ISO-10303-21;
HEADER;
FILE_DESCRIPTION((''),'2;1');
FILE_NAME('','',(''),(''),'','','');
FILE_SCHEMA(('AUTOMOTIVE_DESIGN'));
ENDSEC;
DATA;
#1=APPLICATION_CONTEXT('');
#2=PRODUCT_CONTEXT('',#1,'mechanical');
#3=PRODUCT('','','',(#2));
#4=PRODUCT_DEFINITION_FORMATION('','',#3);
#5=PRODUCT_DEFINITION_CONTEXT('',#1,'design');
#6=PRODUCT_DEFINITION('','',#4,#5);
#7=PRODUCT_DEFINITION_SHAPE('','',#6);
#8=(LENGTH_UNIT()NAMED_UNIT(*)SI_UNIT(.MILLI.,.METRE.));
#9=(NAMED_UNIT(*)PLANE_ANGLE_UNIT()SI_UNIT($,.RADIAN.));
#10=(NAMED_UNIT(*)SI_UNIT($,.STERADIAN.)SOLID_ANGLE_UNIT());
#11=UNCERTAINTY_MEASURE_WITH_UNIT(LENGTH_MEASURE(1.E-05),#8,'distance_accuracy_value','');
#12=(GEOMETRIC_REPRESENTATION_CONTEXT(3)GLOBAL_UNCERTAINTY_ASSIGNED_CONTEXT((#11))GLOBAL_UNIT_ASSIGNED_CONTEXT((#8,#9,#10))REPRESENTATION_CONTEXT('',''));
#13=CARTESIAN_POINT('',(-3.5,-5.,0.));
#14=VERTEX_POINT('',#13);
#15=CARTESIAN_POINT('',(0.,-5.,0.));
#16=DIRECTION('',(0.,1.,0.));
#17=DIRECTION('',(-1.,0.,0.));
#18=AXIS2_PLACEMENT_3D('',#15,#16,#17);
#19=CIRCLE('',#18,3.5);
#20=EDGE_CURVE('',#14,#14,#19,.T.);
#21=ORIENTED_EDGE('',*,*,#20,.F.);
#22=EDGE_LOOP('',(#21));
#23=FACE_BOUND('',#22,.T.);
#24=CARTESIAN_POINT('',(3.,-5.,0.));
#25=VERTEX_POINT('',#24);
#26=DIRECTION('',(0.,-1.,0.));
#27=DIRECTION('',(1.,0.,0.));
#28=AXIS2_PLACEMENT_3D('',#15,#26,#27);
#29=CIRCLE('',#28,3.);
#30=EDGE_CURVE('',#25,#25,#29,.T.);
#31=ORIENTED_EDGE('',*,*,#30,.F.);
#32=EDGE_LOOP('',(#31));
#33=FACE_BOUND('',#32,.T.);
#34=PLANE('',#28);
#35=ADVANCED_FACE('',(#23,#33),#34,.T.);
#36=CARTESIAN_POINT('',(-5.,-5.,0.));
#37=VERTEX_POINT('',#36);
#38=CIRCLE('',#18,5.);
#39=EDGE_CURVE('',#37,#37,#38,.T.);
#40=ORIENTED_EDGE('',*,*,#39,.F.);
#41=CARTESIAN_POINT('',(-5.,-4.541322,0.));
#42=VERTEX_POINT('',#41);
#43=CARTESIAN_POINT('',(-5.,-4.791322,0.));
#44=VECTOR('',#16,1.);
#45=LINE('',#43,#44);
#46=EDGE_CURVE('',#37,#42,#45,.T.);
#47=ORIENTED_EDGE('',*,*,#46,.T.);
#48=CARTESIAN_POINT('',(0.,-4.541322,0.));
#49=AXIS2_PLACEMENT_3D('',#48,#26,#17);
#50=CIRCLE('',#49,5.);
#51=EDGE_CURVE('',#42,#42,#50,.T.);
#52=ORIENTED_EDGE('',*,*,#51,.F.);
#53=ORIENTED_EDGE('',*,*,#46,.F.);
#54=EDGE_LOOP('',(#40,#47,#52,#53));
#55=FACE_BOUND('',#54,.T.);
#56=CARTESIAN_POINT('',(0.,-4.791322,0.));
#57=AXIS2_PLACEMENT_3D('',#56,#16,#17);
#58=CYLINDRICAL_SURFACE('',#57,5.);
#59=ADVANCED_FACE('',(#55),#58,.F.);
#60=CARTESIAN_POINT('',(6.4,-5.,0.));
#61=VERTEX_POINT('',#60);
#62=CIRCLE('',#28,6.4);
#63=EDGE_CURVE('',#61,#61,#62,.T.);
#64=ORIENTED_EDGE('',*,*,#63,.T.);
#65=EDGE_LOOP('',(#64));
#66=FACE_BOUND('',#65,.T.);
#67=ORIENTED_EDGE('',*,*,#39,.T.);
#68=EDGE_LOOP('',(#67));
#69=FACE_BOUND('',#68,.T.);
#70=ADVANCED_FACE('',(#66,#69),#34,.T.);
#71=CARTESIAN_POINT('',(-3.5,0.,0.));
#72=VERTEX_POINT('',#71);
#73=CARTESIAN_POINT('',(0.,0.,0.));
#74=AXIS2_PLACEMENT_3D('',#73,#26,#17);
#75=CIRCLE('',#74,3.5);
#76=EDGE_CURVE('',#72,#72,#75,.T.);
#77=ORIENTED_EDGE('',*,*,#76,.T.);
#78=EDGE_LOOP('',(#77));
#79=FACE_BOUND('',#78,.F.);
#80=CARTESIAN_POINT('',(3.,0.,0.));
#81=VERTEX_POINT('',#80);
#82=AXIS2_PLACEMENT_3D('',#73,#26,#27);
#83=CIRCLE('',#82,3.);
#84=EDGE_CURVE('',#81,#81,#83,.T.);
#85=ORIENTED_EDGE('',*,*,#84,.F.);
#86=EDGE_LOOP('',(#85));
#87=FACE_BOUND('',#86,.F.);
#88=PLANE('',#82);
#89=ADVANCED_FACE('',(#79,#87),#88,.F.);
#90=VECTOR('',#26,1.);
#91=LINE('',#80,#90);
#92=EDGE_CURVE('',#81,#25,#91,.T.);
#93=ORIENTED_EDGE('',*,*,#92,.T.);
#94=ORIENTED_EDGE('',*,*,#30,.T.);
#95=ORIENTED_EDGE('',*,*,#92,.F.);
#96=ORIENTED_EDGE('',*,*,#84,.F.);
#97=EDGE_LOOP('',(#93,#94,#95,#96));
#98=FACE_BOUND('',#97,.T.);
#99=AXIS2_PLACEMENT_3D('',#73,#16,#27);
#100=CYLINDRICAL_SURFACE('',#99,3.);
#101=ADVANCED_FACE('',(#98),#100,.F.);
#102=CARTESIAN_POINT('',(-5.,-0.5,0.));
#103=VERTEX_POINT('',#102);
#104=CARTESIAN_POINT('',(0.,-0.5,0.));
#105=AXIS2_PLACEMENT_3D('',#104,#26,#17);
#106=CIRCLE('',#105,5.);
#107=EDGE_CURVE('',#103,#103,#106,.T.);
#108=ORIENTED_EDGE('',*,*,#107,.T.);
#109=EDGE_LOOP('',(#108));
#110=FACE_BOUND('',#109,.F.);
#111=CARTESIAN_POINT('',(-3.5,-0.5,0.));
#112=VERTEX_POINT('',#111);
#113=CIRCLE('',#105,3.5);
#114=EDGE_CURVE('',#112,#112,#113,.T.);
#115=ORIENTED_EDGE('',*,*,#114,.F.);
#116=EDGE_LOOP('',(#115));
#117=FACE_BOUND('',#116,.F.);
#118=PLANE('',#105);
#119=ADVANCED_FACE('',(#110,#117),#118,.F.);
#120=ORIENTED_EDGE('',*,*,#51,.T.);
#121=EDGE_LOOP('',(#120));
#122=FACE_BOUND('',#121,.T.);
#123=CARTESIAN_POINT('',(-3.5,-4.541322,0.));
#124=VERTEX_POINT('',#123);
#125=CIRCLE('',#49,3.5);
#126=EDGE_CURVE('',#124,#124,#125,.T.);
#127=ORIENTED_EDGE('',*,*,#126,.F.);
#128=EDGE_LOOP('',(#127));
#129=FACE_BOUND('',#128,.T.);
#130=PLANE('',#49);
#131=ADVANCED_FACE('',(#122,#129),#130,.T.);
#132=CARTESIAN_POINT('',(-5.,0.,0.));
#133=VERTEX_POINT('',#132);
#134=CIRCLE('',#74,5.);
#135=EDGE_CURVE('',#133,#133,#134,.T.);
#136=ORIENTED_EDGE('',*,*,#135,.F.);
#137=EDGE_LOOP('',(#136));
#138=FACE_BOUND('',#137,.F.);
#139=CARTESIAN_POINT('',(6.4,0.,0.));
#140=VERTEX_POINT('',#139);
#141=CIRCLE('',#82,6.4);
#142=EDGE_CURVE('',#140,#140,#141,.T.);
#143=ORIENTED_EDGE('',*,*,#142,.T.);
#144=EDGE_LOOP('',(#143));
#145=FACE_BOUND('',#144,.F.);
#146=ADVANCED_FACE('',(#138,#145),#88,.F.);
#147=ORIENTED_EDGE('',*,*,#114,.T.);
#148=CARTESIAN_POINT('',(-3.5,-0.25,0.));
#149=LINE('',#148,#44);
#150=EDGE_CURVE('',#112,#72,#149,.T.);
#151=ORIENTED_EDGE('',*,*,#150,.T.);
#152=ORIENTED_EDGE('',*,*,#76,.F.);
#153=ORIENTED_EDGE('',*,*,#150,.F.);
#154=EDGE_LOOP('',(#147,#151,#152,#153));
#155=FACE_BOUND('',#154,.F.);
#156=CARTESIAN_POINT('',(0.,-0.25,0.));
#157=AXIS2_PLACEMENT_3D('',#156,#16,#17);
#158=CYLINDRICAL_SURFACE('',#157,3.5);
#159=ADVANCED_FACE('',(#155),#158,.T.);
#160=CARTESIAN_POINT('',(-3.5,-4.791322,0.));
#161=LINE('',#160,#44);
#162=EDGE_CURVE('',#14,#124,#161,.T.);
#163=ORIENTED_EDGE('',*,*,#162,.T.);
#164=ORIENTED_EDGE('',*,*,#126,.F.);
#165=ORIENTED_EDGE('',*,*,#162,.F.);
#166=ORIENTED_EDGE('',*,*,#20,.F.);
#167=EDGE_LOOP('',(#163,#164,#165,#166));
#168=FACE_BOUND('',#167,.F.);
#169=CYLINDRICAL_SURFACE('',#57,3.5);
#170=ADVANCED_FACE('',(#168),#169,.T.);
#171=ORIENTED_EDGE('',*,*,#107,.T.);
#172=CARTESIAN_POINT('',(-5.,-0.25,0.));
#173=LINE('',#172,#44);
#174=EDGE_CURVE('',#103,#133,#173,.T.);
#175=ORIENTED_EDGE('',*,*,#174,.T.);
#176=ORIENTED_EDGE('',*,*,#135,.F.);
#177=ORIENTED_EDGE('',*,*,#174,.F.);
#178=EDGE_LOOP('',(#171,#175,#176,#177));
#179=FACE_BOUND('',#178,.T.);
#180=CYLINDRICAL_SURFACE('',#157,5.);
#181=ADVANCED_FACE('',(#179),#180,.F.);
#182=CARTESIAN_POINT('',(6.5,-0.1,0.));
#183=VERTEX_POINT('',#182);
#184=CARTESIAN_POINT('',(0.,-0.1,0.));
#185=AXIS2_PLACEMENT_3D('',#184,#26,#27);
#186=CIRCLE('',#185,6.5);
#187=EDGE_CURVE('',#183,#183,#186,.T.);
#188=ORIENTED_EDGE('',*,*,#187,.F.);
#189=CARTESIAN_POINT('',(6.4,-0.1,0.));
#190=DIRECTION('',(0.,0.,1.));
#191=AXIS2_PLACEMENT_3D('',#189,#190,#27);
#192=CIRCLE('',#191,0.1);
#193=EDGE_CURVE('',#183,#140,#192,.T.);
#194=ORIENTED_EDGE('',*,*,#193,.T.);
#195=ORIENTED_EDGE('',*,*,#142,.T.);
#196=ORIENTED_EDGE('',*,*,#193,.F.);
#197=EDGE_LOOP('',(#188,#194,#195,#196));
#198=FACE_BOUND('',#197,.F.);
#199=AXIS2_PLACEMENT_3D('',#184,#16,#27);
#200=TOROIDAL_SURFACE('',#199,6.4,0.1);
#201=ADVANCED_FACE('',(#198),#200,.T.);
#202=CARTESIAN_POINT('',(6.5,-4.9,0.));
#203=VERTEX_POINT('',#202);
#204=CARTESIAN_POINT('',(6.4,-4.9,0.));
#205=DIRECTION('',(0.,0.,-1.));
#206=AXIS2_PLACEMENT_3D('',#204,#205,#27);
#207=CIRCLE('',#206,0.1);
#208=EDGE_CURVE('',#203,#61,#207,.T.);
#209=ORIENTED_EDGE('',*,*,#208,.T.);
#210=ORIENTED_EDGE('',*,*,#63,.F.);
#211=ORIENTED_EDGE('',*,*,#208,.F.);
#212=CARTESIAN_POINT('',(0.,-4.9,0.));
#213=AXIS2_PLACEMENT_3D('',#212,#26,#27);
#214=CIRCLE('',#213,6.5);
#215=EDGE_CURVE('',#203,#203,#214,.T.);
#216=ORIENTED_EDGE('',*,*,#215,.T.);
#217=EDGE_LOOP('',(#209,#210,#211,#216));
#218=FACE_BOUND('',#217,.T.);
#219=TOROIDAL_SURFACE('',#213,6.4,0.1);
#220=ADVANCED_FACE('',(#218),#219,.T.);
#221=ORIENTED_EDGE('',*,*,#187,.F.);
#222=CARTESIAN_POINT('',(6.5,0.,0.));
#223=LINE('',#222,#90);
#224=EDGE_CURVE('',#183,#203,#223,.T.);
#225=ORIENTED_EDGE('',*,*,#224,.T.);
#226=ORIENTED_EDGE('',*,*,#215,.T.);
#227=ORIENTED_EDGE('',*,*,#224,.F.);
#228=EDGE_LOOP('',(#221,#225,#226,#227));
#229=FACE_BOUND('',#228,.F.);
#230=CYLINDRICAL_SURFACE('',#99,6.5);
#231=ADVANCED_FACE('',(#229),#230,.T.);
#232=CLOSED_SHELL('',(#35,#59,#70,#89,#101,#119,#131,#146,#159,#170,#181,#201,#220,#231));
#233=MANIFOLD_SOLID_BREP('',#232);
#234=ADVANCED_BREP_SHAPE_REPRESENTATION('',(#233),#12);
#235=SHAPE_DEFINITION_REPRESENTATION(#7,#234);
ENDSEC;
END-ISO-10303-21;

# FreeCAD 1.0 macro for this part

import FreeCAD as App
import Part
import Sketcher

V = App.Vector


def edges_at(feature, points):
    """Names of the edges that pass closest to the given points."""
    edges = feature.Shape.Edges
    near = lambda p: min(range(len(edges)), key=lambda i: edges[i].distToShape(Part.Vertex(*p))[0])
    return sorted({f"Edge{near(p) + 1}" for p in points})

doc = App.newDocument("Part")
body = doc.addObject("PartDesign::Body", "Body")

# Sketch on XZ plane
sketch1 = doc.addObject("Sketcher::SketchObject", "Sketch")
body.addObject(sketch1)
sketch1.AttachmentSupport = (doc.XZ_Plane, [""])
sketch1.MapMode = "FlatFace"
sketch1.addGeometry(Part.Circle(V(0, 0, 0), V(0, 0, 1), 6.5), False)
sketch1.addGeometry(Part.Circle(V(0, 0, 0), V(0, 0, 1), 3), False)
sketch1.addConstraint(Sketcher.Constraint("Coincident", 0, 3, -1, 1))
sketch1.addConstraint(Sketcher.Constraint("Coincident", 1, 3, -1, 1))
sketch1.addConstraint(Sketcher.Constraint("Diameter", 0, 13.0))
sketch1.addConstraint(Sketcher.Constraint("Diameter", 1, 6.0))
pad1 = doc.addObject("PartDesign::Pad", "Pad")
body.addObject(pad1)
pad1.Profile = sketch1
pad1.Length = 5

# Sketch on XY plane
sketch2 = doc.addObject("Sketcher::SketchObject", "Sketch001")
body.addObject(sketch2)
sketch2.AttachmentSupport = (doc.XY_Plane, [""])
sketch2.MapMode = "FlatFace"
sketch2.addGeometry(Part.LineSegment(V(-5, -4.541322, 0), V(-5, -5.041322, 0)), False)
sketch2.addGeometry(Part.LineSegment(V(-5, -5.041322, 0), V(-3.5, -5.041322, 0)), False)
sketch2.addGeometry(Part.LineSegment(V(-3.5, -5.041322, 0), V(-3.5, -4.541322, 0)), False)
sketch2.addGeometry(Part.LineSegment(V(-3.5, -4.541322, 0), V(-5, -4.541322, 0)), False)
sketch2.addConstraint(Sketcher.Constraint("Coincident", 0, 2, 1, 1))
sketch2.addConstraint(Sketcher.Constraint("Coincident", 1, 2, 2, 1))
sketch2.addConstraint(Sketcher.Constraint("Coincident", 2, 2, 3, 1))
sketch2.addConstraint(Sketcher.Constraint("Coincident", 3, 2, 0, 1))
sketch2.addConstraint(Sketcher.Constraint("Vertical", 0))
sketch2.addConstraint(Sketcher.Constraint("Horizontal", 1))
sketch2.addConstraint(Sketcher.Constraint("Vertical", 2))
sketch2.addConstraint(Sketcher.Constraint("Horizontal", 3))
sketch2.addConstraint(Sketcher.Constraint("DistanceX", 1, 1, 1, 2, 1.5))
sketch2.addConstraint(Sketcher.Constraint("DistanceY", 0, 2, 0, 1, 0.5))
sketch2.addConstraint(Sketcher.Constraint("DistanceX", 0, 2, -1, 1, 5.0))
sketch2.addConstraint(Sketcher.Constraint("DistanceY", 0, 2, -1, 1, 5.041322))
groove = doc.addObject("PartDesign::Groove", "Groove")
body.addObject(groove)
groove.Profile = sketch2
groove.ReferenceAxis = (sketch2, ["V_Axis"])
groove.Angle = 360

# Sketch on XY plane
sketch3 = doc.addObject("Sketcher::SketchObject", "Sketch002")
body.addObject(sketch3)
sketch3.AttachmentSupport = (doc.XY_Plane, [""])
sketch3.MapMode = "FlatFace"
sketch3.addGeometry(Part.LineSegment(V(-5, 0, 0), V(-5, -0.5, 0)), False)
sketch3.addGeometry(Part.LineSegment(V(-5, -0.5, 0), V(-3.5, -0.5, 0)), False)
sketch3.addGeometry(Part.LineSegment(V(-3.5, -0.5, 0), V(-3.5, 0, 0)), False)
sketch3.addGeometry(Part.LineSegment(V(-3.5, 0, 0), V(-5, 0, 0)), False)
sketch3.addConstraint(Sketcher.Constraint("Coincident", 0, 2, 1, 1))
sketch3.addConstraint(Sketcher.Constraint("Coincident", 1, 2, 2, 1))
sketch3.addConstraint(Sketcher.Constraint("Coincident", 2, 2, 3, 1))
sketch3.addConstraint(Sketcher.Constraint("Coincident", 3, 2, 0, 1))
sketch3.addConstraint(Sketcher.Constraint("Vertical", 0))
sketch3.addConstraint(Sketcher.Constraint("Horizontal", 1))
sketch3.addConstraint(Sketcher.Constraint("Vertical", 2))
sketch3.addConstraint(Sketcher.Constraint("Horizontal", 3))
sketch3.addConstraint(Sketcher.Constraint("PointOnObject", 2, 2, -1))
sketch3.addConstraint(Sketcher.Constraint("DistanceX", 1, 1, 1, 2, 1.5))
sketch3.addConstraint(Sketcher.Constraint("DistanceY", 0, 2, 0, 1, 0.5))
sketch3.addConstraint(Sketcher.Constraint("DistanceX", 0, 2, -1, 1, 5.0))
groove2 = doc.addObject("PartDesign::Groove", "Groove001")
body.addObject(groove2)
groove2.Profile = sketch3
groove2.ReferenceAxis = (sketch3, ["V_Axis"])
groove2.Angle = 360
doc.recompute()

fillet = doc.addObject("PartDesign::Fillet", "Fillet")
body.addObject(fillet)
fillet.Base = (groove2, edges_at(groove2, [(-6.5, -5, 0)]))
fillet.Radius = 0.1
doc.recompute()

fillet2 = doc.addObject("PartDesign::Fillet", "Fillet001")
body.addObject(fillet2)
fillet2.Base = (fillet, edges_at(fillet, [(-6.5, 0, 0)]))
fillet2.Radius = 0.1

doc.recompute()
